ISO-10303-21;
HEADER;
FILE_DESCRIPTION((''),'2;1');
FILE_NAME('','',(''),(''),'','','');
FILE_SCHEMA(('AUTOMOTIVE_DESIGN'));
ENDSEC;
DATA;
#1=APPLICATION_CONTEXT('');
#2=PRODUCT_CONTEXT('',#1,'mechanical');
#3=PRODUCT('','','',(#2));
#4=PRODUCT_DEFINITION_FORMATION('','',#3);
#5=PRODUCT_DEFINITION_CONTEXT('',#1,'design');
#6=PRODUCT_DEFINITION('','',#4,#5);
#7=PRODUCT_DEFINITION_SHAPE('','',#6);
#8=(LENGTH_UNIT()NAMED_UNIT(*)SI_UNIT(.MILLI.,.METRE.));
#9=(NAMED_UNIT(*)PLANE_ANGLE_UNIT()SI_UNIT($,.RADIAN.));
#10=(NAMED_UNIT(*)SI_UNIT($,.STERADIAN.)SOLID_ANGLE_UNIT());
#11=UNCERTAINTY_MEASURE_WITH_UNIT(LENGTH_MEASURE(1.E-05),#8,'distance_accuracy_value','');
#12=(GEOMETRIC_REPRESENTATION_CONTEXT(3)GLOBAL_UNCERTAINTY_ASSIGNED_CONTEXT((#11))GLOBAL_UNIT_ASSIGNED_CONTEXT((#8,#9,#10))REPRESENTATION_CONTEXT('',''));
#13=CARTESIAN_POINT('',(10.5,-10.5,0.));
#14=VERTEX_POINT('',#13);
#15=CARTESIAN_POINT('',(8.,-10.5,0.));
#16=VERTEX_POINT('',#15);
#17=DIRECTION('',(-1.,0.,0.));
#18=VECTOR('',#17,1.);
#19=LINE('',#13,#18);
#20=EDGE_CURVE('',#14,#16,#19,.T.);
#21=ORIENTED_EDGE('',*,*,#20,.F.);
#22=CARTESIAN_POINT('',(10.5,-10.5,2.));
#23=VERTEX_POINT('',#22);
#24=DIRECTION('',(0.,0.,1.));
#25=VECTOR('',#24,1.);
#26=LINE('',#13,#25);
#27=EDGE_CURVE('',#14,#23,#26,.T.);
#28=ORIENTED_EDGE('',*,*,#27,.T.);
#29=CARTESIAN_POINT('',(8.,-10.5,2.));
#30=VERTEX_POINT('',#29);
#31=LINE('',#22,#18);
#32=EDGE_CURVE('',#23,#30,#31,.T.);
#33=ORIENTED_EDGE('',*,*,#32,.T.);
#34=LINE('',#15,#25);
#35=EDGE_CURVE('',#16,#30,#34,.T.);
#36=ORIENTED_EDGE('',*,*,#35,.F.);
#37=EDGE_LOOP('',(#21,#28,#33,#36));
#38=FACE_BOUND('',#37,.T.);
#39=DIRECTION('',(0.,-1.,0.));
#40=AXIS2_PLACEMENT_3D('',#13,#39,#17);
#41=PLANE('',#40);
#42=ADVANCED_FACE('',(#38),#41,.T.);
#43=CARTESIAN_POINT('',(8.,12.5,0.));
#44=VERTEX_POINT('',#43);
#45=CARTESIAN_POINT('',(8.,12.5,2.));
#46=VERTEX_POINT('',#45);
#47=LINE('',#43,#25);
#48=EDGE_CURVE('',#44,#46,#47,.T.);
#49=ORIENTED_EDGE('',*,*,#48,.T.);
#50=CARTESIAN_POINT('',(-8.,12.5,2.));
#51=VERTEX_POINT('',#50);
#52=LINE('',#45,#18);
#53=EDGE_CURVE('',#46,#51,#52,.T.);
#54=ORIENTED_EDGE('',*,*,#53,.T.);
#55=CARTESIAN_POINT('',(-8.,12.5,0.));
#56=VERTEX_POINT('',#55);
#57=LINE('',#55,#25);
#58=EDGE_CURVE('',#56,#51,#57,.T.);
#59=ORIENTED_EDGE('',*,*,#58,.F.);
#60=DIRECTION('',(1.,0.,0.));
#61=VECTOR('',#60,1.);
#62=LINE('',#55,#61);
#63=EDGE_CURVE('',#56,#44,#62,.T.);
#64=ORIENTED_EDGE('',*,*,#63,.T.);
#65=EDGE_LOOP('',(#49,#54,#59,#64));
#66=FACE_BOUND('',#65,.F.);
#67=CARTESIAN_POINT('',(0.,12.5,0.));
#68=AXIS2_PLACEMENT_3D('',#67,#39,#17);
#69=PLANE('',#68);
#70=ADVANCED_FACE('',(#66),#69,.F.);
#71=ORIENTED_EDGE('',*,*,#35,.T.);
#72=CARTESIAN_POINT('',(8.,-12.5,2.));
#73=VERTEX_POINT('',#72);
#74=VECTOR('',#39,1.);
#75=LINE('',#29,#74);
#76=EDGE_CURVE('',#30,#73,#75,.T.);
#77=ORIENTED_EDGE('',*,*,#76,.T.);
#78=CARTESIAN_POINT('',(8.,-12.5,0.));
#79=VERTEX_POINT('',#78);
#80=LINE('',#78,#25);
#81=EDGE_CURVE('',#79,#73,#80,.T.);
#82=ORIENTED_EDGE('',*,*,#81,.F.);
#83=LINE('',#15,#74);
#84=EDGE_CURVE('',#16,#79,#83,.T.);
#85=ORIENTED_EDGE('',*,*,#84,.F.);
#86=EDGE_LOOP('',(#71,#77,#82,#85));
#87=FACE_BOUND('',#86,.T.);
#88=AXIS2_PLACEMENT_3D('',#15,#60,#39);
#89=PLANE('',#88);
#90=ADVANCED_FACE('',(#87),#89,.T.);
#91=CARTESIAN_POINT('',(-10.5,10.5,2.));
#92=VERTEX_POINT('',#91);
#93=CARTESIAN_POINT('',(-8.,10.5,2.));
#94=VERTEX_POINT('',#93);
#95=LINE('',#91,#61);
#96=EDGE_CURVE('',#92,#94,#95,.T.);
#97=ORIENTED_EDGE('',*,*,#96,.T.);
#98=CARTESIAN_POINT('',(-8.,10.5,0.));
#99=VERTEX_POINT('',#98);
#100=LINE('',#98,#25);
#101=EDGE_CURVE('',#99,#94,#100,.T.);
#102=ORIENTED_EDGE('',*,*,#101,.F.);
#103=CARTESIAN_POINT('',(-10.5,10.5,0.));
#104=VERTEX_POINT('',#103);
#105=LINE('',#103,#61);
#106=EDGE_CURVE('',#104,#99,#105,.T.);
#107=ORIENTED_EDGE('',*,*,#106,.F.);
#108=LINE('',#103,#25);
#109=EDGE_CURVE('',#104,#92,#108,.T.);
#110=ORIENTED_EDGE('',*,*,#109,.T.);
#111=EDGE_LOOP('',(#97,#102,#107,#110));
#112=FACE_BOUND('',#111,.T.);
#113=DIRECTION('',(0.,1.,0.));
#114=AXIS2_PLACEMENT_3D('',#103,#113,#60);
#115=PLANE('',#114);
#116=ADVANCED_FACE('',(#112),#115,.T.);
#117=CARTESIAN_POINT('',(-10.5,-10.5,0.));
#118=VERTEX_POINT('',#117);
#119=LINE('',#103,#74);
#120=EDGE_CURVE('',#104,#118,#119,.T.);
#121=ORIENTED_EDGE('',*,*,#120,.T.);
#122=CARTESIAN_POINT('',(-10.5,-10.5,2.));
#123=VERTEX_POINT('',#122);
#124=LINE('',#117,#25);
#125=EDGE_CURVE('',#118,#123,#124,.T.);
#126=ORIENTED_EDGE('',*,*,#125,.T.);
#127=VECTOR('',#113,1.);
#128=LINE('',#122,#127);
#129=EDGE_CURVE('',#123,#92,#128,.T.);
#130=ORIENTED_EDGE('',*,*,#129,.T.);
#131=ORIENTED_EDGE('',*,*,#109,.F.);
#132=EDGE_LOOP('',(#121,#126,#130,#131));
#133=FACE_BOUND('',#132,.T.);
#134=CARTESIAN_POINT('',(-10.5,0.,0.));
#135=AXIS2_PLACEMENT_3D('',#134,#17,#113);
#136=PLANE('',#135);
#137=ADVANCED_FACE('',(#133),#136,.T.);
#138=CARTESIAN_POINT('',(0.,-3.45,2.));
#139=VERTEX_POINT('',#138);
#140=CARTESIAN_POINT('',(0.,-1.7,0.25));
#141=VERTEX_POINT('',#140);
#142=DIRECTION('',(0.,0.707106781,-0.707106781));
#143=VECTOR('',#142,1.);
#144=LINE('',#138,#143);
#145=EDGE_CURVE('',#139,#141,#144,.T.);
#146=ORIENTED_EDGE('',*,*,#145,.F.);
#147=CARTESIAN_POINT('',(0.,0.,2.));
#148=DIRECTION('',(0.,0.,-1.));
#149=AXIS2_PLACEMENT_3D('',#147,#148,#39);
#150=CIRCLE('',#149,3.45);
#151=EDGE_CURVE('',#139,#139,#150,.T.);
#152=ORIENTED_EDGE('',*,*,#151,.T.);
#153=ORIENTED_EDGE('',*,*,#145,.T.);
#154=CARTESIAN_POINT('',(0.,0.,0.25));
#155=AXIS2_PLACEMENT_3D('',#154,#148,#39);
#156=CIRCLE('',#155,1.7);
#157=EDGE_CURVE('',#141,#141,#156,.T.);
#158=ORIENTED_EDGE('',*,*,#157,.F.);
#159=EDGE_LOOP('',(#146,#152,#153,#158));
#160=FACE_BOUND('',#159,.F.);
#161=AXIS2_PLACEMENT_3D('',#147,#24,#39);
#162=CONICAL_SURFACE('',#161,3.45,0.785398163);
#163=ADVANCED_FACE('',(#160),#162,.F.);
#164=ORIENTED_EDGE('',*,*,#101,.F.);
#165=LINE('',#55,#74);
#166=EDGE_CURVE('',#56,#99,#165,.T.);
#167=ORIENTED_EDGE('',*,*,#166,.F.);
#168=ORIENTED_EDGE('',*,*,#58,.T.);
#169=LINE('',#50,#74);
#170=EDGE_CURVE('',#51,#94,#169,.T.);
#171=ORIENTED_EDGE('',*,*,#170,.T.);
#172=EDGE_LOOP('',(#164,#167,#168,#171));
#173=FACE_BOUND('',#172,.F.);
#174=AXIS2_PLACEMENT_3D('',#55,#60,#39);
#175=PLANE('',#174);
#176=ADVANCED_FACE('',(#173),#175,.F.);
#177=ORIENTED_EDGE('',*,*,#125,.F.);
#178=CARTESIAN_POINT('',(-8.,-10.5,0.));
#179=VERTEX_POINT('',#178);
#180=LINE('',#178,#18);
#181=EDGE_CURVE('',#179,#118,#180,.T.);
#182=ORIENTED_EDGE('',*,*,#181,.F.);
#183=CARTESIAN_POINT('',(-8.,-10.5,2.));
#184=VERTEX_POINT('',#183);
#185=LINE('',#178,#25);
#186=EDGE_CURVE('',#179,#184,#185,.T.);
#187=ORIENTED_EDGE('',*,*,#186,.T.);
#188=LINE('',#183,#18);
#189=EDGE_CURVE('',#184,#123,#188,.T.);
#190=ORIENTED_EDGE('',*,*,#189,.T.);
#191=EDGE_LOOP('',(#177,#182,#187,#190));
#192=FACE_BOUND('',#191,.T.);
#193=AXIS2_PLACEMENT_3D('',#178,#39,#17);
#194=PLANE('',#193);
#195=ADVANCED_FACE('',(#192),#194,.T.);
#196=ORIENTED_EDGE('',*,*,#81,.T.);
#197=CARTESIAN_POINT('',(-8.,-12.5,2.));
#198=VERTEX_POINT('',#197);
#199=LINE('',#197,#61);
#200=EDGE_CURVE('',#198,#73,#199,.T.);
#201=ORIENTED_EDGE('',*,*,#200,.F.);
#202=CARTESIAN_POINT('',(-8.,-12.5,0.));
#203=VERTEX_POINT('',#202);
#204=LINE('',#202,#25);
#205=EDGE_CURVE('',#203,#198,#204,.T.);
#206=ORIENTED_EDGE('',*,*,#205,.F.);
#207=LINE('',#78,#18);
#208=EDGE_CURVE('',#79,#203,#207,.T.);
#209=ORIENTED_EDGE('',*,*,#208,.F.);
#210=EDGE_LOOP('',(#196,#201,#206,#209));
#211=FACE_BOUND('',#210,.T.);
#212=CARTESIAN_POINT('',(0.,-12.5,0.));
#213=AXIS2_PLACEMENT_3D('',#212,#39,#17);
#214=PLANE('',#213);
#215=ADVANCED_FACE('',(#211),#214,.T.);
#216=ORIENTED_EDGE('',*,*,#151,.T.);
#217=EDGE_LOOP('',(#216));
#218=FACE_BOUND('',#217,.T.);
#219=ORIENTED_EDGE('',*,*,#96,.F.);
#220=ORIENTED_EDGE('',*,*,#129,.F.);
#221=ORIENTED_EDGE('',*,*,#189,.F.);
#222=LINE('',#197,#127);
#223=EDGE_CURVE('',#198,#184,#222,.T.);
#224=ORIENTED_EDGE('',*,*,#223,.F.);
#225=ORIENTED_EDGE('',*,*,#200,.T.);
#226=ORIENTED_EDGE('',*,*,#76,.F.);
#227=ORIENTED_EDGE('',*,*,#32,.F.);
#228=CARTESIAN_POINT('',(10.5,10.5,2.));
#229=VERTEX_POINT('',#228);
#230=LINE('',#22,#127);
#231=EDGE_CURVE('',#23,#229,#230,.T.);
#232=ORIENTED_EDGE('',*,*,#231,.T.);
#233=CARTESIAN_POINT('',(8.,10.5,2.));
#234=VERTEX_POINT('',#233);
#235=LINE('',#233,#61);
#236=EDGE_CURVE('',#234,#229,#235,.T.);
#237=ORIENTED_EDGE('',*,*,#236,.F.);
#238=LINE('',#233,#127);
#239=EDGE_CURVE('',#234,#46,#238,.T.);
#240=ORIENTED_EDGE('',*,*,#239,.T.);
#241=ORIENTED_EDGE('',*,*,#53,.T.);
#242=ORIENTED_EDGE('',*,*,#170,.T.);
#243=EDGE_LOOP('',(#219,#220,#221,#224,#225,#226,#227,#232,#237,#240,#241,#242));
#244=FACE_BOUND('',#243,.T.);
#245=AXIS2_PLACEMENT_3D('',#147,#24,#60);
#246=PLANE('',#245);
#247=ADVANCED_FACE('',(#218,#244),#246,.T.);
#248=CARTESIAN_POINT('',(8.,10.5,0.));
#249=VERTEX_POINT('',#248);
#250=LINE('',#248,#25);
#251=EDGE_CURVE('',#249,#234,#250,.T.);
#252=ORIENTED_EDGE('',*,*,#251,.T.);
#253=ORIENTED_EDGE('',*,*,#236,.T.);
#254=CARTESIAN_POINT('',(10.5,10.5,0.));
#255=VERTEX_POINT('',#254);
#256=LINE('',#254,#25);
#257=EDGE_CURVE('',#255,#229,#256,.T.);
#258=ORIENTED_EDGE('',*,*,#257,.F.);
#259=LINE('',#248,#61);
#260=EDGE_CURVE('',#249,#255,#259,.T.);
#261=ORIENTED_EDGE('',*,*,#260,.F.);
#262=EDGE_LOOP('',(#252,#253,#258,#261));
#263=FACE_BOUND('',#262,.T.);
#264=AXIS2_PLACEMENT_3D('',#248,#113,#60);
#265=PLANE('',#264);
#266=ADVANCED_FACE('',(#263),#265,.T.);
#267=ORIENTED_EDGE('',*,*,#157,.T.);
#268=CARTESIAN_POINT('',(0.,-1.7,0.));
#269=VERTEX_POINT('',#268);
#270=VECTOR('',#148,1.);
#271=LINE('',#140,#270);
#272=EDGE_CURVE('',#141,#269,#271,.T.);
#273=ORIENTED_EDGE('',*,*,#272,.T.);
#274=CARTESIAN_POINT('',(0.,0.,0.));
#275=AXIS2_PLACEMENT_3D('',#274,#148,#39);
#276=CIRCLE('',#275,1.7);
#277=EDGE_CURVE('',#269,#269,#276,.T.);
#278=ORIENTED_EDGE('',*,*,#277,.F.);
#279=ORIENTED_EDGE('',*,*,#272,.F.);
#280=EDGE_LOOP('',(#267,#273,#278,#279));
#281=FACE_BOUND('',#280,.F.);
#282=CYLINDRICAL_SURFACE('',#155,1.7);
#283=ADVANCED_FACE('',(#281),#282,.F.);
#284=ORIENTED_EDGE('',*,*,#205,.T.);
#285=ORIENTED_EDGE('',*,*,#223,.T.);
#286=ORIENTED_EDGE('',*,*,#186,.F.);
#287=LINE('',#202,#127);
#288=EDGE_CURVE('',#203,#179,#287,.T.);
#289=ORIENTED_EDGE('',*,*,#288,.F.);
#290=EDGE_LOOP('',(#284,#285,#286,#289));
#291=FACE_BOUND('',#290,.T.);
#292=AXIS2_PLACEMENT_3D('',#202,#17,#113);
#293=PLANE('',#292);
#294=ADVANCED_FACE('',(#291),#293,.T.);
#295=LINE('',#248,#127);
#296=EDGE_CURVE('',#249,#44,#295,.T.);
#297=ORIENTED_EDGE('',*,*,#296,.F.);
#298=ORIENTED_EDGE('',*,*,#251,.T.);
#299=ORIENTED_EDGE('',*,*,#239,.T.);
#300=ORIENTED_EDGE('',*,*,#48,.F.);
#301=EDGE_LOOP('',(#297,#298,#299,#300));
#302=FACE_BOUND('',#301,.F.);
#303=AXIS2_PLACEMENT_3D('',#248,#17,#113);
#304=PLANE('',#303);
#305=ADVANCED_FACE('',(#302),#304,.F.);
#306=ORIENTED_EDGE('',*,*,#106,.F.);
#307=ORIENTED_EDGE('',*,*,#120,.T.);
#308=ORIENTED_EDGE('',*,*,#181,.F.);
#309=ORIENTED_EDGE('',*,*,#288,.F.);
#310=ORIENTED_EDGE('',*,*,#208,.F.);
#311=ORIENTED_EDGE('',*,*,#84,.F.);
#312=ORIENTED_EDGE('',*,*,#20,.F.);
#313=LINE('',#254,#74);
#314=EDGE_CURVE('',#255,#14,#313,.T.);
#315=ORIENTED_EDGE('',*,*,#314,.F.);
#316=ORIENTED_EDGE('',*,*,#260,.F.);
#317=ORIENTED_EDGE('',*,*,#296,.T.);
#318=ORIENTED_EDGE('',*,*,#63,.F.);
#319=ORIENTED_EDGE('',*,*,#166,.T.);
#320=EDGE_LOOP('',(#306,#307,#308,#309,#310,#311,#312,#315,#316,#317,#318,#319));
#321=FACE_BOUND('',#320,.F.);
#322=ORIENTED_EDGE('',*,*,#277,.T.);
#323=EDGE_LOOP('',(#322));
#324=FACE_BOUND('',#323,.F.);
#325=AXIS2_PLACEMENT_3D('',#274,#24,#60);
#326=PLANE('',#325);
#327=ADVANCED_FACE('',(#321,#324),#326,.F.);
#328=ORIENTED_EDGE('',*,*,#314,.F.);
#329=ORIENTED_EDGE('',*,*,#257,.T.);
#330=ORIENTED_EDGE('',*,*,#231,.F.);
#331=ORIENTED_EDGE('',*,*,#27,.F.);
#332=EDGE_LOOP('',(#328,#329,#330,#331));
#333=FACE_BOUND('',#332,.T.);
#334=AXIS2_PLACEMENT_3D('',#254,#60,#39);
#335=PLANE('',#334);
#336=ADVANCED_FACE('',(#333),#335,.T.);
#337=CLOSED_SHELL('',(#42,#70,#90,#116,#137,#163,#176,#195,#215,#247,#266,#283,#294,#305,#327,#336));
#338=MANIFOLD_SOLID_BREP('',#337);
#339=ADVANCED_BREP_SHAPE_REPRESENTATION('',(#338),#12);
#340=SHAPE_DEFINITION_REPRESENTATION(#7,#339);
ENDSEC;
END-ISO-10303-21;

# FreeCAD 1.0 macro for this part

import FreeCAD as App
import Part
import Sketcher

V = App.Vector


def add_polygon(sketch, points):
    """Adds a closed chain of lines whose ends are joined by coincident constraints."""
    first, n = sketch.GeometryCount, len(points)
    for a, b in zip(points, points[1:] + points[:1]):
        sketch.addGeometry(Part.LineSegment(App.Vector(*a, 0), App.Vector(*b, 0)), False)
    for i in range(n):
        sketch.addConstraint(Sketcher.Constraint("Coincident", first + i, 2, first + (i + 1) % n, 1))

doc = App.newDocument("Part")
body = doc.addObject("PartDesign::Body", "Body")

sketch1 = body.newObject("Sketcher::SketchObject", "Sketch")
sketch1.AttachmentSupport = (doc.getObject("XY_Plane"), [""])
sketch1.MapMode = "FlatFace"
add_polygon(sketch1, [(-10.5, 10.5), (-10.5, -10.5), (-8, -10.5), (-8, -12.5), (8, -12.5), (8, -10.5), (10.5, -10.5), (10.5, 10.5), (8, 10.5), (8, 12.5), (-8, 12.5), (-8, 10.5)])
sketch1.addConstraint([
    Sketcher.Constraint("Vertical", 0),
    Sketcher.Constraint("Horizontal", 1),
    Sketcher.Constraint("Vertical", 2),
    Sketcher.Constraint("Horizontal", 3),
    Sketcher.Constraint("Vertical", 4),
    Sketcher.Constraint("Horizontal", 5),
    Sketcher.Constraint("Vertical", 6),
    Sketcher.Constraint("Horizontal", 7),
    Sketcher.Constraint("Vertical", 8),
    Sketcher.Constraint("Horizontal", 9),
    Sketcher.Constraint("Vertical", 10),
    Sketcher.Constraint("Horizontal", 11),
    Sketcher.Constraint("Symmetric", 0, 2, 6, 2, -1, 1),
    Sketcher.Constraint("Symmetric", 2, 2, 8, 2, -1, 1),
    Sketcher.Constraint("Symmetric", 4, 2, 10, 2, -1, 1),
    Sketcher.Constraint("Symmetric", 1, 2, 4, 2, -2),
    Sketcher.Constraint("DistanceX", 3, 1, 3, 2, 16.0),
    Sketcher.Constraint("DistanceY", 0, 2, 0, 1, 21.0),
    Sketcher.Constraint("DistanceX", 0, 2, 5, 2, 21.0),
    Sketcher.Constraint("DistanceY", 3, 2, 8, 2, 25.0),
])
pad1 = body.newObject("PartDesign::Pad", "Pad")
pad1.Profile = sketch1
pad1.Length = 2

sketch2 = body.newObject("Sketcher::SketchObject", "Sketch001")
sketch2.AttachmentSupport = (doc.getObject("XY_Plane"), [""])
sketch2.MapMode = "FlatFace"
sketch2.AttachmentOffset = App.Placement(V(0, 0, 2), App.Rotation())
sketch2.addGeometry(Part.Circle(V(0, 0, 0), V(0, 0, 1), 1.7), False)
sketch2.addConstraint([
    Sketcher.Constraint("Coincident", 0, 3, -1, 1),
    Sketcher.Constraint("Diameter", 0, 3.4),
])
doc.recompute()
hole = body.newObject("PartDesign::Hole", "Hole")
hole.Profile = sketch2
hole.ThreadType = "None"
hole.Diameter = 3.4
hole.DepthType = "ThroughAll"
hole.HoleCutType = "Countersink"
hole.HoleCutDiameter = 6.9
hole.HoleCutCountersinkAngle = 90

doc.recompute()
